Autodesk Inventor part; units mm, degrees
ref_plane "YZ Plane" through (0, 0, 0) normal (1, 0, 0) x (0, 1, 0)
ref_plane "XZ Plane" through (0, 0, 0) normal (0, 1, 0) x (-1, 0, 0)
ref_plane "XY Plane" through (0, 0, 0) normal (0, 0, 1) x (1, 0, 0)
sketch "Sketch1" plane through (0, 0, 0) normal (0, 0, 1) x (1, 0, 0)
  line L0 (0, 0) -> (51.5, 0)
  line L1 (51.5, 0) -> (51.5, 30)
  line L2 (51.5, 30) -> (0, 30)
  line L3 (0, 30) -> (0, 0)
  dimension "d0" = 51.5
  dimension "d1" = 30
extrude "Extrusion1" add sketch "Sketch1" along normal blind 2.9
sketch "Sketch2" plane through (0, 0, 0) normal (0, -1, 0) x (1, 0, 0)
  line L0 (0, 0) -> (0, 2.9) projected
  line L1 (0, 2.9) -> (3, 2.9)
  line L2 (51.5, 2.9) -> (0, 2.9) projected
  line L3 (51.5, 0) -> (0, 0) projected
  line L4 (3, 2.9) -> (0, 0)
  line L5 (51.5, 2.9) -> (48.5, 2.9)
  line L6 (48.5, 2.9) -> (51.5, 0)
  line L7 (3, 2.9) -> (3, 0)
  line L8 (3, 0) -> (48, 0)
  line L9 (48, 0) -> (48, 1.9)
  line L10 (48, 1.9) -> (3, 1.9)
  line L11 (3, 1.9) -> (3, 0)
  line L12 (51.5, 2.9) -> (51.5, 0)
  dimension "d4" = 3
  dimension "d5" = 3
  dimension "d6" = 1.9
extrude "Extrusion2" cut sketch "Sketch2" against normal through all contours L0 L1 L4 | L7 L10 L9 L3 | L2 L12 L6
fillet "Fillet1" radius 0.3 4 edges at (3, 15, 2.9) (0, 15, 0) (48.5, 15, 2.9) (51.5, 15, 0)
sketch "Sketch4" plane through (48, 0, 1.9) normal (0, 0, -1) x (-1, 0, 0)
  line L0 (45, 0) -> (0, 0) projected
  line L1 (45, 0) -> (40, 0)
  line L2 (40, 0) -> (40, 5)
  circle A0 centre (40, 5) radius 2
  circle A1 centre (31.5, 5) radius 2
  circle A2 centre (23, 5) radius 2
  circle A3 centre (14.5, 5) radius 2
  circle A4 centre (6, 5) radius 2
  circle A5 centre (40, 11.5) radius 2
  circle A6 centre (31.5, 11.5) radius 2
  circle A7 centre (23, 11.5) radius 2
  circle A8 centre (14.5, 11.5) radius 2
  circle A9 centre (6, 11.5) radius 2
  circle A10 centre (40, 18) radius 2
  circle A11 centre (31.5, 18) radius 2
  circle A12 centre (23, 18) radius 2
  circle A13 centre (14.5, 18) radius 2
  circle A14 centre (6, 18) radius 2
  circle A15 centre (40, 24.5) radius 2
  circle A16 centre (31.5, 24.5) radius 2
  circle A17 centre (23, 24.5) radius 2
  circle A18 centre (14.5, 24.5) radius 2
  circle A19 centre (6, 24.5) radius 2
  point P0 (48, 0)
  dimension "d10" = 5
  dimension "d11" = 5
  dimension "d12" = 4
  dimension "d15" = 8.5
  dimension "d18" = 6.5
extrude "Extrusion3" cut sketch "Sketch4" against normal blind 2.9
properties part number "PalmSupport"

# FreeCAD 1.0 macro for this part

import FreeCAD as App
import Part
import Sketcher
from FreeCAD import Vector


def edges_at(feature, points):
    """Names of the edges that pass closest to the given points."""
    edges = feature.Shape.Edges
    near = lambda p: min(range(len(edges)), key=lambda i: edges[i].distToShape(Part.Vertex(*p))[0])
    return sorted({f"Edge{near(p) + 1}" for p in points})

doc = App.newDocument("Part")
body = doc.addObject("PartDesign::Body", "Body")

# Sketch on XY plane
sketch1 = doc.addObject("Sketcher::SketchObject", "Sketch")
body.addObject(sketch1)
sketch1.AttachmentSupport = (doc.XY_Plane, [""])
sketch1.MapMode = "FlatFace"
sketch1.addGeometry([
    Part.LineSegment(Vector(0, 30, 0), Vector(0, 0, 0)),
    Part.LineSegment(Vector(0, 0, 0), Vector(52, 0, 0)),
    Part.LineSegment(Vector(52, 0, 0), Vector(52, 30, 0)),
    Part.LineSegment(Vector(52, 30, 0), Vector(0, 30, 0)),
], False)
sketch1.addConstraint([
    Sketcher.Constraint("Coincident", 0, 2, 1, 1),
    Sketcher.Constraint("Coincident", 1, 2, 2, 1),
    Sketcher.Constraint("Coincident", 2, 2, 3, 1),
    Sketcher.Constraint("Coincident", 3, 2, 0, 1),
    Sketcher.Constraint("Vertical", 0),
    Sketcher.Constraint("Horizontal", 1),
    Sketcher.Constraint("Vertical", 2),
    Sketcher.Constraint("Horizontal", 3),
    Sketcher.Constraint("Coincident", 0, 2, -1, 1),
    Sketcher.Constraint("DistanceY", 0, 2, 0, 1, 30.0),
    Sketcher.Constraint("DistanceX", 1, 1, 1, 2, 51.5),
])
pad1 = doc.addObject("PartDesign::Pad", "Pad")
body.addObject(pad1)
pad1.Profile = sketch1
pad1.Length = 2.9

# Sketch on XZ plane
sketch2 = doc.addObject("Sketcher::SketchObject", "Sketch001")
body.addObject(sketch2)
sketch2.AttachmentSupport = (doc.XZ_Plane, [""])
sketch2.MapMode = "FlatFace"
sketch2.addGeometry([
    Part.LineSegment(Vector(0, 2.9, 0), Vector(0, 0, 0)),  # 0
    Part.LineSegment(Vector(0, 0, 0), Vector(3, 2.9, 0)),  # 1
    Part.LineSegment(Vector(3, 2.9, 0), Vector(0, 2.9, 0)),  # 2
    Part.LineSegment(Vector(3, 1.9, 0), Vector(3, 0, 0)),  # 3
    Part.LineSegment(Vector(3, 0, 0), Vector(48, 0, 0)),  # 4
    Part.LineSegment(Vector(48, 0, 0), Vector(48, 1.9, 0)),  # 5
    Part.LineSegment(Vector(48, 1.9, 0), Vector(3, 1.9, 0)),  # 6
    Part.LineSegment(Vector(51.5, 2.9, 0), Vector(48.5, 2.9, 0)),  # 7
    Part.LineSegment(Vector(48.5, 2.9, 0), Vector(51.5, 0, 0)),  # 8
    Part.LineSegment(Vector(51.5, 0, 0), Vector(51.5, 2.9, 0)),  # 9
], False)
sketch2.addConstraint([
    Sketcher.Constraint("Coincident", 0, 2, 1, 1),
    Sketcher.Constraint("Coincident", 1, 2, 2, 1),
    Sketcher.Constraint("Coincident", 2, 2, 0, 1),
    Sketcher.Constraint("Coincident", 3, 2, 4, 1),
    Sketcher.Constraint("Coincident", 4, 2, 5, 1),
    Sketcher.Constraint("Coincident", 5, 2, 6, 1),
    Sketcher.Constraint("Coincident", 6, 2, 3, 1),
    Sketcher.Constraint("Coincident", 7, 2, 8, 1),
    Sketcher.Constraint("Coincident", 8, 2, 9, 1),
    Sketcher.Constraint("Coincident", 9, 2, 7, 1),
    Sketcher.Constraint("Vertical", 0),
    Sketcher.Constraint("Horizontal", 2),
    Sketcher.Constraint("Vertical", 3),
    Sketcher.Constraint("Horizontal", 4),
    Sketcher.Constraint("Vertical", 5),
    Sketcher.Constraint("Horizontal", 6),
    Sketcher.Constraint("Horizontal", 7),
    Sketcher.Constraint("Vertical", 9),
    Sketcher.Constraint("Coincident", 0, 2, -1, 1),
    Sketcher.Constraint("PointOnObject", 3, 2, -1),
    Sketcher.Constraint("PointOnObject", 8, 2, -1),
    Sketcher.Constraint("Horizontal", 2, 2, 7, 2),
    Sketcher.Constraint("Vertical", 1, 2, 3, 2),
    Sketcher.Constraint("Equal", 2, 7),
    Sketcher.Constraint("DistanceX", 2, 2, 2, 1, 3.0),
    Sketcher.Constraint("DistanceY", 3, 2, 3, 1, 1.9),
    Sketcher.Constraint("DistanceX", 4, 1, 4, 2, 45.0),
    Sketcher.Constraint("DistanceY", 0, 2, 0, 1, 2.9),
    Sketcher.Constraint("DistanceX", -1, 1, 7, 2, 48.5),
])
pocket1 = doc.addObject("PartDesign::Pocket", "Pocket")
body.addObject(pocket1)
pocket1.Profile = sketch2
pocket1.Type = "ThroughAll"
doc.recompute()

fillet = doc.addObject("PartDesign::Fillet", "Fillet")
body.addObject(fillet)
fillet.Base = (pocket1, edges_at(pocket1, [
    (3, 15, 2.9),
    (0, 15, 0),
    (48.5, 15, 2.9),
    (51.5, 15, 0),
]))
fillet.Radius = 0.3

# Sketch on XY plane
sketch3 = doc.addObject("Sketcher::SketchObject", "Sketch002")
body.addObject(sketch3)
sketch3.AttachmentSupport = (doc.XY_Plane, [""])
sketch3.MapMode = "FlatFace"
sketch3.AttachmentOffset = App.Placement(Vector(0, 0, 1.9), App.Rotation())
sketch3.addGeometry([
    Part.Circle(Vector(8, 5, 0), Vector(0, 0, 1), 2),  # 0
    Part.Circle(Vector(16.5, 5, 0), Vector(0, 0, 1), 2),  # 1
    Part.Circle(Vector(25, 5, 0), Vector(0, 0, 1), 2),  # 2
    Part.Circle(Vector(33.5, 5, 0), Vector(0, 0, 1), 2),  # 3
    Part.Circle(Vector(42, 5, 0), Vector(0, 0, 1), 2),  # 4
    Part.Circle(Vector(8, 11.5, 0), Vector(0, 0, 1), 2),  # 5
    Part.Circle(Vector(16.5, 11.5, 0), Vector(0, 0, 1), 2),  # 6
    Part.Circle(Vector(25, 11.5, 0), Vector(0, 0, 1), 2),  # 7
    Part.Circle(Vector(33.5, 11.5, 0), Vector(0, 0, 1), 2),  # 8
    Part.Circle(Vector(42, 11.5, 0), Vector(0, 0, 1), 2),  # 9
    Part.Circle(Vector(8, 18, 0), Vector(0, 0, 1), 2),  # 10
    Part.Circle(Vector(16.5, 18, 0), Vector(0, 0, 1), 2),  # 11
    Part.Circle(Vector(25, 18, 0), Vector(0, 0, 1), 2),  # 12
    Part.Circle(Vector(33.5, 18, 0), Vector(0, 0, 1), 2),  # 13
    Part.Circle(Vector(42, 18, 0), Vector(0, 0, 1), 2),  # 14
    Part.Circle(Vector(8, 24.5, 0), Vector(0, 0, 1), 2),  # 15
    Part.Circle(Vector(16.5, 24.5, 0), Vector(0, 0, 1), 2),  # 16
    Part.Circle(Vector(25, 24.5, 0), Vector(0, 0, 1), 2),  # 17
    Part.Circle(Vector(33.5, 24.5, 0), Vector(0, 0, 1), 2),  # 18
    Part.Circle(Vector(42, 24.5, 0), Vector(0, 0, 1), 2),  # 19
], False)
sketch3.addConstraint([
    Sketcher.Constraint("Equal", 0, 1),
    Sketcher.Constraint("Equal", 1, 2),
    Sketcher.Constraint("Equal", 2, 3),
    Sketcher.Constraint("Equal", 3, 4),
    Sketcher.Constraint("Equal", 4, 5),
    Sketcher.Constraint("Equal", 5, 6),
    Sketcher.Constraint("Equal", 6, 7),
    Sketcher.Constraint("Equal", 7, 8),
    Sketcher.Constraint("Equal", 8, 9),
    Sketcher.Constraint("Equal", 9, 10),
    Sketcher.Constraint("Equal", 10, 11),
    Sketcher.Constraint("Equal", 11, 12),
    Sketcher.Constraint("Equal", 12, 13),
    Sketcher.Constraint("Equal", 13, 14),
    Sketcher.Constraint("Equal", 14, 15),
    Sketcher.Constraint("Equal", 15, 16),
    Sketcher.Constraint("Equal", 16, 17),
    Sketcher.Constraint("Equal", 17, 18),
    Sketcher.Constraint("Equal", 18, 19),
    Sketcher.Constraint("Horizontal", 0, 3, 1, 3),
    Sketcher.Constraint("Horizontal", 1, 3, 2, 3),
    Sketcher.Constraint("Horizontal", 2, 3, 3, 3),
    Sketcher.Constraint("Horizontal", 3, 3, 4, 3),
    Sketcher.Constraint("Horizontal", 5, 3, 6, 3),
    Sketcher.Constraint("Horizontal", 6, 3, 7, 3),
    Sketcher.Constraint("Horizontal", 7, 3, 8, 3),
    Sketcher.Constraint("Horizontal", 8, 3, 9, 3),
    Sketcher.Constraint("Horizontal", 10, 3, 11, 3),
    Sketcher.Constraint("Horizontal", 11, 3, 12, 3),
    Sketcher.Constraint("Horizontal", 12, 3, 13, 3),
    Sketcher.Constraint("Horizontal", 13, 3, 14, 3),
    Sketcher.Constraint("Horizontal", 15, 3, 16, 3),
    Sketcher.Constraint("Horizontal", 16, 3, 17, 3),
    Sketcher.Constraint("Horizontal", 17, 3, 18, 3),
    Sketcher.Constraint("Horizontal", 18, 3, 19, 3),
    Sketcher.Constraint("Vertical", 0, 3, 5, 3),
    Sketcher.Constraint("Vertical", 1, 3, 6, 3),
    Sketcher.Constraint("Vertical", 2, 3, 7, 3),
    Sketcher.Constraint("Vertical", 3, 3, 8, 3),
    Sketcher.Constraint("Vertical", 4, 3, 9, 3),
    Sketcher.Constraint("Vertical", 5, 3, 10, 3),
    Sketcher.Constraint("Vertical", 6, 3, 11, 3),
    Sketcher.Constraint("Vertical", 7, 3, 12, 3),
    Sketcher.Constraint("Vertical", 8, 3, 13, 3),
    Sketcher.Constraint("Vertical", 9, 3, 14, 3),
    Sketcher.Constraint("Vertical", 10, 3, 15, 3),
    Sketcher.Constraint("Vertical", 11, 3, 16, 3),
    Sketcher.Constraint("Vertical", 12, 3, 17, 3),
    Sketcher.Constraint("Vertical", 13, 3, 18, 3),
    Sketcher.Constraint("Vertical", 14, 3, 19, 3),
    Sketcher.Constraint("Diameter", 0, 4.0),
    Sketcher.Constraint("DistanceY", -1, 1, 0, 3, 5.0),
    Sketcher.Constraint("DistanceX", 0, 3, 1, 3, 8.5),
    Sketcher.Constraint("DistanceX", 1, 3, 2, 3, 8.5),
    Sketcher.Constraint("DistanceX", 2, 3, 3, 3, 8.5),
    Sketcher.Constraint("DistanceX", 3, 3, 4, 3, 8.5),
    Sketcher.Constraint("DistanceY", 0, 3, 5, 3, 6.5),
    Sketcher.Constraint("DistanceY", 5, 3, 10, 3, 6.5),
    Sketcher.Constraint("DistanceY", 10, 3, 15, 3, 6.5),
    Sketcher.Constraint("DistanceX", -1, 1, 0, 3, 8.0),
])
pocket2 = doc.addObject("PartDesign::Pocket", "Pocket001")
body.addObject(pocket2)
pocket2.Profile = sketch3
pocket2.Length = 2.9
pocket2.Reversed = True

doc.recompute()
